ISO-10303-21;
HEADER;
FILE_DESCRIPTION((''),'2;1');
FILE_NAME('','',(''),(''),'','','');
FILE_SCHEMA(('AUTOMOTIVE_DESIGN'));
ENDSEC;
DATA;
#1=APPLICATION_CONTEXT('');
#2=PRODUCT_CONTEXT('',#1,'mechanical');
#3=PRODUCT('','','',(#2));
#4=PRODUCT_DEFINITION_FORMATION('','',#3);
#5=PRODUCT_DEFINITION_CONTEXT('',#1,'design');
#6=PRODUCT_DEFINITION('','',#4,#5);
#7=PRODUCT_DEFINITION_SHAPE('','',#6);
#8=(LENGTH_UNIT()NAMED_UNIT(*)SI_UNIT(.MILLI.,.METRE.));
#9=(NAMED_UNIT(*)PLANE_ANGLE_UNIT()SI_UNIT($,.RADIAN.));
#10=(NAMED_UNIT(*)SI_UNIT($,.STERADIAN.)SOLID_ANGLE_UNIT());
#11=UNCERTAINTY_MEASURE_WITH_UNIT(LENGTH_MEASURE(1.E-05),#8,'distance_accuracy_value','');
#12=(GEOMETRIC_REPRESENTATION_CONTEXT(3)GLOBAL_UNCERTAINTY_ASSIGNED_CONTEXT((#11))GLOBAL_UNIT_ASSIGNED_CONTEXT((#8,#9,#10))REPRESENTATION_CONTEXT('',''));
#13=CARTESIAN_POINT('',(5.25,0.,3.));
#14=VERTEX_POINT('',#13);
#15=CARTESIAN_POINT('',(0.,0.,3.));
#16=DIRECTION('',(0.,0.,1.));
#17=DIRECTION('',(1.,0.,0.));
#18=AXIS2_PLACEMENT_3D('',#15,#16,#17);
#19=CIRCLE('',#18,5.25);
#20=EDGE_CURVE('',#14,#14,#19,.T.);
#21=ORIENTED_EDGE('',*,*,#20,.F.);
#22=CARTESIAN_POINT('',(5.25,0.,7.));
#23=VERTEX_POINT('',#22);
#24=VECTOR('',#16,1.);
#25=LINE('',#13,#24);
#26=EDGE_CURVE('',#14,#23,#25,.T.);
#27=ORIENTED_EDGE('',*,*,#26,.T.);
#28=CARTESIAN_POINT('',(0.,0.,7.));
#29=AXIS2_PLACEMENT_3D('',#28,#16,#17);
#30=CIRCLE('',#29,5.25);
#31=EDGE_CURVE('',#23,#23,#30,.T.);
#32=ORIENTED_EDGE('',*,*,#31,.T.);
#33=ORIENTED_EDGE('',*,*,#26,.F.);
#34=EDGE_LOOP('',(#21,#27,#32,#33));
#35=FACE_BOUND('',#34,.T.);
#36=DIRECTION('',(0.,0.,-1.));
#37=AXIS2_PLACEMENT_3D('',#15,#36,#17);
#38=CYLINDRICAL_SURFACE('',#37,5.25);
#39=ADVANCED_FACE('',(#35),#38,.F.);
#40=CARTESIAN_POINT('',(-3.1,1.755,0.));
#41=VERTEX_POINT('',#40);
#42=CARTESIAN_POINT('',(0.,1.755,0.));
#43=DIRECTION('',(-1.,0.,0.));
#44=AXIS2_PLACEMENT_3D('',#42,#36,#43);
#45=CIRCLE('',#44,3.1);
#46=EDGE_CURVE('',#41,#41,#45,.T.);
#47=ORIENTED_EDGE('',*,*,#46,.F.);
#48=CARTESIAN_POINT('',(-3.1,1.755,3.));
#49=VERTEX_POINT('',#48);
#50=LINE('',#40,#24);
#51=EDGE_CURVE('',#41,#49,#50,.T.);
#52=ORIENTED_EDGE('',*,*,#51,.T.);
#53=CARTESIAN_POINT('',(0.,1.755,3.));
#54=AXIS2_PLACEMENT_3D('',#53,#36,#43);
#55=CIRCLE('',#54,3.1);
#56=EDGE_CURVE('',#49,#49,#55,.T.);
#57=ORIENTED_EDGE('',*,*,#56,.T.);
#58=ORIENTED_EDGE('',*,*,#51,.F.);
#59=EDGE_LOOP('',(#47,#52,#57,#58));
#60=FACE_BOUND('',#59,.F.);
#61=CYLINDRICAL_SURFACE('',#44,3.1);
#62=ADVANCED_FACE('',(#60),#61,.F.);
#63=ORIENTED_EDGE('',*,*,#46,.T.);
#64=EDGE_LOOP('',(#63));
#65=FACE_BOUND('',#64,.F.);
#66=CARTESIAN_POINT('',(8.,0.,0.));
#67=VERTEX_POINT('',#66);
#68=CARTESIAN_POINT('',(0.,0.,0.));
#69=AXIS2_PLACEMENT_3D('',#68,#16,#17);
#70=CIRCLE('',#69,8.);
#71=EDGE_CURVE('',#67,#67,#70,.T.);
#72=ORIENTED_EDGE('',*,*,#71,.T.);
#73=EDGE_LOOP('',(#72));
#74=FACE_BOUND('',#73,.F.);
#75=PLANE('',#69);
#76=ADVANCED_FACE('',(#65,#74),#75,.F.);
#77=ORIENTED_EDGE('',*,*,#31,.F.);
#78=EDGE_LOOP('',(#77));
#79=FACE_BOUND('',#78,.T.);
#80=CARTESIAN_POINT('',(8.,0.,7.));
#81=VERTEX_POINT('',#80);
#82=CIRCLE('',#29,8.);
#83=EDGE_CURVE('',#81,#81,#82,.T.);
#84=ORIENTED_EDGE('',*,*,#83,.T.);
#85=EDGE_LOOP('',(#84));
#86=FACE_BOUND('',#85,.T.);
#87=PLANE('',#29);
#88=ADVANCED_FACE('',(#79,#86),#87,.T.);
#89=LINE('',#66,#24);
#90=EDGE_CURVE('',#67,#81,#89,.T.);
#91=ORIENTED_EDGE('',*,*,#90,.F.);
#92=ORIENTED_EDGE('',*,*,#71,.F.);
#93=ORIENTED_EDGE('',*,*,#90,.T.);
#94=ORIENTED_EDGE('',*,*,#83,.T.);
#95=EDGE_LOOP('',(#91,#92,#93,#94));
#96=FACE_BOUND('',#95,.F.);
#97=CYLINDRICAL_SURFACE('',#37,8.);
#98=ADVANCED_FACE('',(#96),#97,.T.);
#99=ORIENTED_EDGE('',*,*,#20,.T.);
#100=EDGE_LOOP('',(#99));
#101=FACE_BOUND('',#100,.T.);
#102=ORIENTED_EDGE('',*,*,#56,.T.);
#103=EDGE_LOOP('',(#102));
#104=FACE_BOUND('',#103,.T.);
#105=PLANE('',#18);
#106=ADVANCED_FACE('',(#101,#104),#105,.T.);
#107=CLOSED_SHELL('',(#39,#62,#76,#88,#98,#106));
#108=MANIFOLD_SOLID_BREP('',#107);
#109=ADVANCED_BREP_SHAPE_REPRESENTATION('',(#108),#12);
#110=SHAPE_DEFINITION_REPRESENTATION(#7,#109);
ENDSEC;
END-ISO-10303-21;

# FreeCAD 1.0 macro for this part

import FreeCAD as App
import Part
import Sketcher
Q = App.Units.Quantity

doc = App.newDocument("Part")
params = doc.addObject("Spreadsheet::Sheet", "Params")
for row, (alias, value) in enumerate([
    ("sketch1_diameter", "16 mm"),
    ("pad1_length", "3 mm"),
    ("sketch2_diameter", "10.5 mm"),
    ("sketch2_diameter2", "16 mm"),
    ("pad2_length", "4 mm"),
    ("sketch3_diameter", "6.2 mm"),
], start=1):
    params.set(f"A{row}", alias)
    params.set(f"B{row}", "=" + value)
    params.setAlias(f"B{row}", alias)

body = doc.addObject("PartDesign::Body", "Body")

# Sketch on XY plane
sketch1 = body.newObject("Sketcher::SketchObject", "Sketch")
sketch1.AttachmentSupport = (doc.getObject("XY_Plane"), [""])
sketch1.MapMode = "FlatFace"
sketch1.addGeometry(Part.Circle(App.Vector(0, 0, 0), App.Vector(0, 0, 1), 8), False)
sketch1.addConstraint([
    Sketcher.Constraint("Coincident", 0, 3, -1, 1),
    Sketcher.Constraint("Diameter", 0, Q("16 mm")),
])
sketch1.setExpression("Constraints[1]", "Params.sketch1_diameter")
pad1 = body.newObject("PartDesign::Pad", "Pad")
pad1.Profile = sketch1
pad1.setExpression("Length", "Params.pad1_length")

# Sketch on XY plane
sketch2 = body.newObject("Sketcher::SketchObject", "Sketch001")
sketch2.AttachmentSupport = (doc.getObject("XY_Plane"), [""])
sketch2.MapMode = "FlatFace"
sketch2.AttachmentOffset = App.Placement(App.Vector(0, 0, 3), App.Rotation())
sketch2.addGeometry([
    Part.Circle(App.Vector(0, 0, 0), App.Vector(0, 0, 1), 8),
    Part.Circle(App.Vector(0, 0, 0), App.Vector(0, 0, 1), 5),
], False)
sketch2.addConstraint([
    Sketcher.Constraint("Coincident", 0, 3, -1, 1),
    Sketcher.Constraint("Coincident", 1, 3, -1, 1),
    Sketcher.Constraint("Diameter", 1, Q("10.5 mm")),
    Sketcher.Constraint("Diameter", 0, Q("16 mm")),
])
sketch2.setExpression("Constraints[2]", "Params.sketch2_diameter")
sketch2.setExpression("Constraints[3]", "Params.sketch2_diameter2")
pad2 = body.newObject("PartDesign::Pad", "Pad001")
pad2.Profile = sketch2
pad2.setExpression("Length", "Params.pad2_length")

# Sketch on XY plane
sketch3 = body.newObject("Sketcher::SketchObject", "Sketch002")
sketch3.AttachmentSupport = (doc.getObject("XY_Plane"), [""])
sketch3.MapMode = "FlatFace"
sketch3.addGeometry(Part.Circle(App.Vector(0, 1.8, 0), App.Vector(0, 0, 1), 3.1), False)
sketch3.addConstraint([
    Sketcher.Constraint("PointOnObject", 0, 3, -2),
    Sketcher.Constraint("Diameter", 0, Q("6.2 mm")),
    Sketcher.Constraint("DistanceY", -1, 1, 0, 3, Q("1.755 mm")),
])
sketch3.setExpression("Constraints[1]", "Params.sketch3_diameter")
pocket1 = body.newObject("PartDesign::Pocket", "Pocket")
pocket1.Profile = sketch3
pocket1.Type = "ThroughAll"
pocket1.Reversed = True

doc.recompute()
